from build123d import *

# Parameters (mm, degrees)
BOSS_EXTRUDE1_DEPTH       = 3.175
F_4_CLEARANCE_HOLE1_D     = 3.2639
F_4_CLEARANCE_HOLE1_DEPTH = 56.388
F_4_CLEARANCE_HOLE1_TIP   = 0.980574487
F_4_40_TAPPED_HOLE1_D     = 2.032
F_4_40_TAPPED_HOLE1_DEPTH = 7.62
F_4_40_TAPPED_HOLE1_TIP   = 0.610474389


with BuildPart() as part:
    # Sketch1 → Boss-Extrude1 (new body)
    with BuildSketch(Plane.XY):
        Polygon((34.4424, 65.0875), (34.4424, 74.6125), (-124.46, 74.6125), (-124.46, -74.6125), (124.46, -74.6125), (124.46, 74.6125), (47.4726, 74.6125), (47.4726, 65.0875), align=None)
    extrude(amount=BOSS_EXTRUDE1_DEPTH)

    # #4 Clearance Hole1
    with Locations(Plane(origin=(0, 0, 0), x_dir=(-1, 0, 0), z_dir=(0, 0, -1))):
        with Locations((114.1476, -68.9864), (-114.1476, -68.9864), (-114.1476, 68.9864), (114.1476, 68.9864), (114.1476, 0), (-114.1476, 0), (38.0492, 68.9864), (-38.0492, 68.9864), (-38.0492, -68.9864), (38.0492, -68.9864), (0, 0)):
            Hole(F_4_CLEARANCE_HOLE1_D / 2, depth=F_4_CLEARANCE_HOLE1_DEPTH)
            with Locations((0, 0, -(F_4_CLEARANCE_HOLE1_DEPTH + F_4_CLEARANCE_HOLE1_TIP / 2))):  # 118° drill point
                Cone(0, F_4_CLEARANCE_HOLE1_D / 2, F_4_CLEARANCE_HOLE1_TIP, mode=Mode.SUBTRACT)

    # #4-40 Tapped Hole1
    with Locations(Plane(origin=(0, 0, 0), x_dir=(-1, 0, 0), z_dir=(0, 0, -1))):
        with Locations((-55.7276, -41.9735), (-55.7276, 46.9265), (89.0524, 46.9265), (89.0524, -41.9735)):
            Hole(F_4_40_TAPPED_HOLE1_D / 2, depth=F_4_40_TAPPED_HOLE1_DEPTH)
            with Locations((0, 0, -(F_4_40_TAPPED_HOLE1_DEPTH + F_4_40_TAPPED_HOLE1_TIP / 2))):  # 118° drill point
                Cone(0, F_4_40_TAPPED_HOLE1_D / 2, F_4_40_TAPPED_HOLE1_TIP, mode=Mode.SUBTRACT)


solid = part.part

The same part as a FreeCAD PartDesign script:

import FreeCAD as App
import Part
import Sketcher
from FreeCAD import Vector
Q = App.Units.Quantity

doc = App.newDocument("Part")
body = doc.addObject("PartDesign::Body", "Body")

# Sketch on XY plane
sketch1 = body.newObject("Sketcher::SketchObject", "Sketch")
sketch1.AttachmentSupport = (doc.getObject("XY_Plane"), [""])
sketch1.MapMode = "FlatFace"
sketch1.addGeometry([
    Part.LineSegment(Vector(34, 65, 0), Vector(34, 75, 0)),  # 0
    Part.LineSegment(Vector(34, 75, 0), Vector(-124, 75, 0)),  # 1
    Part.LineSegment(Vector(-124, 75, 0), Vector(-124, -75, 0)),  # 2
    Part.LineSegment(Vector(-124, -75, 0), Vector(124, -75, 0)),  # 3
    Part.LineSegment(Vector(124, -75, 0), Vector(124, 75, 0)),  # 4
    Part.LineSegment(Vector(124, 75, 0), Vector(47, 75, 0)),  # 5
    Part.LineSegment(Vector(47, 75, 0), Vector(47, 65, 0)),  # 6
    Part.LineSegment(Vector(47, 65, 0), Vector(34, 65, 0)),  # 7
], False)
sketch1.addConstraint([
    Sketcher.Constraint("Coincident", 0, 2, 1, 1),
    Sketcher.Constraint("Coincident", 1, 2, 2, 1),
    Sketcher.Constraint("Coincident", 2, 2, 3, 1),
    Sketcher.Constraint("Coincident", 3, 2, 4, 1),
    Sketcher.Constraint("Coincident", 4, 2, 5, 1),
    Sketcher.Constraint("Coincident", 5, 2, 6, 1),
    Sketcher.Constraint("Coincident", 6, 2, 7, 1),
    Sketcher.Constraint("Coincident", 7, 2, 0, 1),
    Sketcher.Constraint("Vertical", 0),
    Sketcher.Constraint("Horizontal", 1),
    Sketcher.Constraint("Vertical", 2),
    Sketcher.Constraint("Horizontal", 3),
    Sketcher.Constraint("Vertical", 4),
    Sketcher.Constraint("Horizontal", 5),
    Sketcher.Constraint("Vertical", 6),
    Sketcher.Constraint("Horizontal", 7),
    Sketcher.Constraint("Symmetric", 1, 2, 3, 2, -1, 1),
    Sketcher.Constraint("Horizontal", 1, 2, 4, 2),
    Sketcher.Constraint("DistanceX", 3, 1, 3, 2, Q("9.8 in")),
    Sketcher.Constraint("DistanceY", 3, 2, 6, 2, Q("5.5 in")),
    Sketcher.Constraint("DistanceX", 1, 2, 1, 1, Q("6.256 in")),
    Sketcher.Constraint("DistanceX", 5, 2, 5, 1, Q("3.031 in")),
    Sketcher.Constraint("DistanceY", 0, 1, 0, 2, Q("0.375 in")),
])
pad1 = body.newObject("PartDesign::Pad", "Pad")
pad1.Profile = sketch1
pad1.Length = Q("0.125 in")

# Sketch on XY plane
sketch2 = body.newObject("Sketcher::SketchObject", "Sketch001")
sketch2.AttachmentSupport = (doc.getObject("XY_Plane"), [""])
sketch2.MapMode = "FlatFace"
sketch2.addGeometry([
    Part.Circle(Vector(-114.1, -69, 0), Vector(0, 0, 1), 1.6),  # 0
    Part.Circle(Vector(114.1, -69, 0), Vector(0, 0, 1), 1.6),  # 1
    Part.Circle(Vector(114.1, 69, 0), Vector(0, 0, 1), 1.6),  # 2
    Part.Circle(Vector(-114.1, 69, 0), Vector(0, 0, 1), 1.6),  # 3
    Part.Circle(Vector(-114.1, 0, 0), Vector(0, 0, 1), 1.6),  # 4
    Part.Circle(Vector(114.1, 0, 0), Vector(0, 0, 1), 1.6),  # 5
    Part.Circle(Vector(-38, 69, 0), Vector(0, 0, 1), 1.6),  # 6
    Part.Circle(Vector(38, 69, 0), Vector(0, 0, 1), 1.6),  # 7
    Part.Circle(Vector(38, -69, 0), Vector(0, 0, 1), 1.6),  # 8
    Part.Circle(Vector(-38, -69, 0), Vector(0, 0, 1), 1.6),  # 9
    Part.Circle(Vector(0, 0, 0), Vector(0, 0, 1), 1.6),  # 10
], False)
sketch2.addConstraint([
    Sketcher.Constraint("Coincident", 10, 3, -1, 1),
    Sketcher.Constraint("Equal", 0, 1),
    Sketcher.Constraint("Equal", 1, 2),
    Sketcher.Constraint("Equal", 2, 3),
    Sketcher.Constraint("Equal", 3, 4),
    Sketcher.Constraint("Equal", 4, 5),
    Sketcher.Constraint("Equal", 5, 6),
    Sketcher.Constraint("Equal", 6, 7),
    Sketcher.Constraint("Equal", 7, 8),
    Sketcher.Constraint("Equal", 8, 9),
    Sketcher.Constraint("Equal", 9, 10),
    Sketcher.Constraint("Symmetric", 0, 3, 2, 3, -1, 1),
    Sketcher.Constraint("Symmetric", 1, 3, 3, 3, -1, 1),
    Sketcher.Constraint("Symmetric", 4, 3, 5, 3, -1, 1),
    Sketcher.Constraint("Symmetric", 6, 3, 8, 3, -1, 1),
    Sketcher.Constraint("Symmetric", 7, 3, 9, 3, -1, 1),
    Sketcher.Constraint("Symmetric", 0, 3, 1, 3, -2),
    Sketcher.Constraint("Symmetric", 6, 3, 7, 3, -2),
    Sketcher.Constraint("PointOnObject", 4, 3, -1),
    Sketcher.Constraint("Horizontal", 3, 3, 6, 3),
    Sketcher.Constraint("Vertical", 3, 3, 4, 3),
    Sketcher.Constraint("Diameter", 0, Q("0.1285 in")),
    Sketcher.Constraint("DistanceX", 0, 3, -1, 1, Q("4.494 in")),
    Sketcher.Constraint("DistanceY", 0, 3, -1, 1, Q("2.716 in")),
    Sketcher.Constraint("DistanceX", 6, 3, -1, 1, Q("1.498 in")),
])
doc.recompute()
hole = body.newObject("PartDesign::Hole", "Hole")
hole.Profile = sketch2
hole.ThreadType = "None"
hole.Diameter = Q("0.1285 in")
hole.DepthType = "Dimension"
hole.Depth = Q("2.22 in")
hole.DrillPoint = "Angled"
hole.DrillPointAngle = 118
hole.Reversed = True

# Sketch on XY plane
sketch3 = body.newObject("Sketcher::SketchObject", "Sketch002")
sketch3.AttachmentSupport = (doc.getObject("XY_Plane"), [""])
sketch3.MapMode = "FlatFace"
sketch3.addGeometry([
    Part.Circle(Vector(55.7, -42, 0), Vector(0, 0, 1), 1),
    Part.Circle(Vector(55.7, 46.9, 0), Vector(0, 0, 1), 1),
    Part.Circle(Vector(-89.1, 46.9, 0), Vector(0, 0, 1), 1),
    Part.Circle(Vector(-89.1, -42, 0), Vector(0, 0, 1), 1),
], False)
sketch3.addConstraint([
    Sketcher.Constraint("Equal", 0, 1),
    Sketcher.Constraint("Equal", 1, 2),
    Sketcher.Constraint("Equal", 2, 3),
    Sketcher.Constraint("Horizontal", 1, 3, 2, 3),
    Sketcher.Constraint("Horizontal", 0, 3, 3, 3),
    Sketcher.Constraint("Vertical", 0, 3, 1, 3),
    Sketcher.Constraint("Vertical", 2, 3, 3, 3),
    Sketcher.Constraint("Diameter", 0, Q("0.08 in")),
    Sketcher.Constraint("DistanceY", 0, 3, 1, 3, Q("3.5 in")),
    Sketcher.Constraint("DistanceX", 2, 3, 1, 3, Q("5.7 in")),
    Sketcher.Constraint("DistanceX", -1, 1, 0, 3, Q("2.194 in")),
    Sketcher.Constraint("DistanceY", 0, 3, -1, 1, Q("1.6525 in")),
])
doc.recompute()
hole2 = body.newObject("PartDesign::Hole", "Hole001")
hole2.Profile = sketch3
hole2.ThreadType = "None"
hole2.Diameter = Q("0.08 in")
hole2.DepthType = "Dimension"
hole2.Depth = Q("0.3 in")
hole2.DrillPoint = "Angled"
hole2.DrillPointAngle = 118
hole2.Reversed = True

doc.recompute()
